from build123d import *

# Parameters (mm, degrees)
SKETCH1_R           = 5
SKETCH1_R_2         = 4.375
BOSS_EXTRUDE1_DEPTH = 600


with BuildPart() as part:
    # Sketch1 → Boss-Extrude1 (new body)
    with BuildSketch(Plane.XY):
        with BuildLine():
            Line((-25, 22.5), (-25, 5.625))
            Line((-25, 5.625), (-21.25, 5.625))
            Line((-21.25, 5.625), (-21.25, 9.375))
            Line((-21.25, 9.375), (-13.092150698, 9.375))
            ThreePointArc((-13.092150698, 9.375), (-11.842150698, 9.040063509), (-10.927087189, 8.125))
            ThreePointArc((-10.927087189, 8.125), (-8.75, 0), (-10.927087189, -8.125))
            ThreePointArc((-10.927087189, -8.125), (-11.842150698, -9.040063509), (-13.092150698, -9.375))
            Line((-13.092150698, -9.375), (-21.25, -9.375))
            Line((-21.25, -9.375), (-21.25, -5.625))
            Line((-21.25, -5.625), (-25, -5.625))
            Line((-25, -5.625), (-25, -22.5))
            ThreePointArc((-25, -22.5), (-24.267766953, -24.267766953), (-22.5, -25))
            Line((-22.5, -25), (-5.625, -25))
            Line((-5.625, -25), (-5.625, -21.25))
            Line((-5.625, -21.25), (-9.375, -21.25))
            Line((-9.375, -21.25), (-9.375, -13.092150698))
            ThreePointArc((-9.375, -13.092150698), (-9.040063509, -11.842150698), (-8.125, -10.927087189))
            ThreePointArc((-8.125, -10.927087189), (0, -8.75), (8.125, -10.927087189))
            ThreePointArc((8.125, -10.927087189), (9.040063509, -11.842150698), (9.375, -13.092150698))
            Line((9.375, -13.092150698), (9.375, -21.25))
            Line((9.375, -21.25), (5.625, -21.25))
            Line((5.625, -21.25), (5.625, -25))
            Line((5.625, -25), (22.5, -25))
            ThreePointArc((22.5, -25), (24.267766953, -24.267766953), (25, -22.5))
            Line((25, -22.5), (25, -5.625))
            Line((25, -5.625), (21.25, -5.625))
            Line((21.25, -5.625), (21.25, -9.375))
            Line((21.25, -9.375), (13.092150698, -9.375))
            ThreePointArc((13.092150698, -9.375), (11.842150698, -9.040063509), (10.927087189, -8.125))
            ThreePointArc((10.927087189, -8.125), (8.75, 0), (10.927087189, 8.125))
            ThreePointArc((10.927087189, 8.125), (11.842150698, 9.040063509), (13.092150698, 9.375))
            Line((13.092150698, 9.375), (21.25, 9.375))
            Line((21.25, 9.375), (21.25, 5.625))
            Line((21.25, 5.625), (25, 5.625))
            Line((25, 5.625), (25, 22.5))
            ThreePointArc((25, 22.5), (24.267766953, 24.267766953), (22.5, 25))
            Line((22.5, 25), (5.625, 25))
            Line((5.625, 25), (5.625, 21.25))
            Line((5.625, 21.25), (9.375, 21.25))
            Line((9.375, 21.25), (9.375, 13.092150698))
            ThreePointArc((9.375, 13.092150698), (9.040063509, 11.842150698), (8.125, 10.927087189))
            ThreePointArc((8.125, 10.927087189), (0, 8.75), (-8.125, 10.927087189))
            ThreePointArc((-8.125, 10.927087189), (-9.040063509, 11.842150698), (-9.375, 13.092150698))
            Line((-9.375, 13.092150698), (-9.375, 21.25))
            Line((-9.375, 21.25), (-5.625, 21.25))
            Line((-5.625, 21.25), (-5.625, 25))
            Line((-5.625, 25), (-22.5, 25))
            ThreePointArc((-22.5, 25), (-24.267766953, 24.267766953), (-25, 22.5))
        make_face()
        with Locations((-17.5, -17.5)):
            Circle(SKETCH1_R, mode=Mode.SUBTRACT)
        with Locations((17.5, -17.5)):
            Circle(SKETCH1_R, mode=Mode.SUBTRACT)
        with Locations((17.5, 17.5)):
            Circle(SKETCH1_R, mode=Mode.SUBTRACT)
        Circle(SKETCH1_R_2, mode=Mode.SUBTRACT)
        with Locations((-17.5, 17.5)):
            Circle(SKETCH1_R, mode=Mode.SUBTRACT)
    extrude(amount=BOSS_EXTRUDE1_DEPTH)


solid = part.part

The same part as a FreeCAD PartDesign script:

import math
import FreeCAD as App
import Part
import Sketcher

doc = App.newDocument("Part")
body = doc.addObject("PartDesign::Body", "Body")

# Sketch on XY plane
sketch1 = body.newObject("Sketcher::SketchObject", "Sketch")
sketch1.AttachmentSupport = (doc.getObject("XY_Plane"), [""])
sketch1.MapMode = "FlatFace"
sketch1.addGeometry([
    Part.LineSegment(App.Vector(-25, 22.5, 0), App.Vector(-25, 5.625, 0)),  # 0
    Part.LineSegment(App.Vector(-25, 5.625, 0), App.Vector(-21.25, 5.625, 0)),  # 1
    Part.LineSegment(App.Vector(-21.25, 5.625, 0), App.Vector(-21.25, 9.375, 0)),  # 2
    Part.LineSegment(App.Vector(-21.25, 9.375, 0), App.Vector(-13.092151, 9.375, 0)),  # 3
    Part.ArcOfCircle(Part.Circle(App.Vector(-13.092151, 6.875, 0), App.Vector(0, 0, 1), 2.5), math.radians(30), math.radians(90)),  # 4
    Part.ArcOfCircle(Part.Circle(App.Vector(-25, 0, 0), App.Vector(0, 0, 1), 16.25), math.radians(-30), math.radians(30)),  # 5
    Part.ArcOfCircle(Part.Circle(App.Vector(-13.092151, -6.875, 0), App.Vector(0, 0, 1), 2.5), math.radians(-90), math.radians(-30)),  # 6
    Part.LineSegment(App.Vector(-13.092151, -9.375, 0), App.Vector(-21.25, -9.375, 0)),  # 7
    Part.LineSegment(App.Vector(-21.25, -9.375, 0), App.Vector(-21.25, -5.625, 0)),  # 8
    Part.LineSegment(App.Vector(-21.25, -5.625, 0), App.Vector(-25, -5.625, 0)),  # 9
    Part.LineSegment(App.Vector(-25, -5.625, 0), App.Vector(-25, -22.5, 0)),  # 10
    Part.ArcOfCircle(Part.Circle(App.Vector(-22.5, -22.5, 0), App.Vector(0, 0, 1), 2.5), math.radians(180), math.radians(270)),  # 11
    Part.LineSegment(App.Vector(-22.5, -25, 0), App.Vector(-5.625, -25, 0)),  # 12
    Part.LineSegment(App.Vector(-5.625, -25, 0), App.Vector(-5.625, -21.25, 0)),  # 13
    Part.LineSegment(App.Vector(-5.625, -21.25, 0), App.Vector(-9.375, -21.25, 0)),  # 14
    Part.LineSegment(App.Vector(-9.375, -21.25, 0), App.Vector(-9.375, -13.092151, 0)),  # 15
    Part.ArcOfCircle(Part.Circle(App.Vector(-6.875, -13.092151, 0), App.Vector(0, 0, 1), 2.5), math.radians(120), math.radians(180)),  # 16
    Part.ArcOfCircle(Part.Circle(App.Vector(0, -25, 0), App.Vector(0, 0, 1), 16.25), math.radians(60), math.radians(120)),  # 17
    Part.ArcOfCircle(Part.Circle(App.Vector(6.875, -13.092151, 0), App.Vector(0, 0, 1), 2.5), math.radians(0), math.radians(60)),  # 18
    Part.LineSegment(App.Vector(9.375, -13.092151, 0), App.Vector(9.375, -21.25, 0)),  # 19
    Part.LineSegment(App.Vector(9.375, -21.25, 0), App.Vector(5.625, -21.25, 0)),  # 20
    Part.LineSegment(App.Vector(5.625, -21.25, 0), App.Vector(5.625, -25, 0)),  # 21
    Part.LineSegment(App.Vector(5.625, -25, 0), App.Vector(22.5, -25, 0)),  # 22
    Part.ArcOfCircle(Part.Circle(App.Vector(22.5, -22.5, 0), App.Vector(0, 0, 1), 2.5), math.radians(-90), math.radians(0)),  # 23
    Part.LineSegment(App.Vector(25, -22.5, 0), App.Vector(25, -5.625, 0)),  # 24
    Part.LineSegment(App.Vector(25, -5.625, 0), App.Vector(21.25, -5.625, 0)),  # 25
    Part.LineSegment(App.Vector(21.25, -5.625, 0), App.Vector(21.25, -9.375, 0)),  # 26
    Part.LineSegment(App.Vector(21.25, -9.375, 0), App.Vector(13.092151, -9.375, 0)),  # 27
    Part.ArcOfCircle(Part.Circle(App.Vector(13.092151, -6.875, 0), App.Vector(0, 0, 1), 2.5), math.radians(-150), math.radians(-90)),  # 28
    Part.ArcOfCircle(Part.Circle(App.Vector(25, 0, 0), App.Vector(0, 0, 1), 16.25), math.radians(150), math.radians(210)),  # 29
    Part.ArcOfCircle(Part.Circle(App.Vector(13.092151, 6.875, 0), App.Vector(0, 0, 1), 2.5), math.radians(90), math.radians(150)),  # 30
    Part.LineSegment(App.Vector(13.092151, 9.375, 0), App.Vector(21.25, 9.375, 0)),  # 31
    Part.LineSegment(App.Vector(21.25, 9.375, 0), App.Vector(21.25, 5.625, 0)),  # 32
    Part.LineSegment(App.Vector(21.25, 5.625, 0), App.Vector(25, 5.625, 0)),  # 33
    Part.LineSegment(App.Vector(25, 5.625, 0), App.Vector(25, 22.5, 0)),  # 34
    Part.ArcOfCircle(Part.Circle(App.Vector(22.5, 22.5, 0), App.Vector(0, 0, 1), 2.5), math.radians(0), math.radians(90)),  # 35
    Part.LineSegment(App.Vector(22.5, 25, 0), App.Vector(5.625, 25, 0)),  # 36
    Part.LineSegment(App.Vector(5.625, 25, 0), App.Vector(5.625, 21.25, 0)),  # 37
    Part.LineSegment(App.Vector(5.625, 21.25, 0), App.Vector(9.375, 21.25, 0)),  # 38
    Part.LineSegment(App.Vector(9.375, 21.25, 0), App.Vector(9.375, 13.092151, 0)),  # 39
    Part.ArcOfCircle(Part.Circle(App.Vector(6.875, 13.092151, 0), App.Vector(0, 0, 1), 2.5), math.radians(-60), math.radians(0)),  # 40
    Part.ArcOfCircle(Part.Circle(App.Vector(0, 25, 0), App.Vector(0, 0, 1), 16.25), math.radians(-120), math.radians(-60)),  # 41
    Part.ArcOfCircle(Part.Circle(App.Vector(-6.875, 13.092151, 0), App.Vector(0, 0, 1), 2.5), math.radians(-180), math.radians(-120)),  # 42
    Part.LineSegment(App.Vector(-9.375, 13.092151, 0), App.Vector(-9.375, 21.25, 0)),  # 43
    Part.LineSegment(App.Vector(-9.375, 21.25, 0), App.Vector(-5.625, 21.25, 0)),  # 44
    Part.LineSegment(App.Vector(-5.625, 21.25, 0), App.Vector(-5.625, 25, 0)),  # 45
    Part.LineSegment(App.Vector(-5.625, 25, 0), App.Vector(-22.5, 25, 0)),  # 46
    Part.ArcOfCircle(Part.Circle(App.Vector(-22.5, 22.5, 0), App.Vector(0, 0, 1), 2.5), math.radians(90), math.radians(180)),  # 47
    Part.Circle(App.Vector(-17.5, -17.5, 0), App.Vector(0, 0, 1), 5),  # 48
    Part.Circle(App.Vector(17.5, -17.5, 0), App.Vector(0, 0, 1), 5),  # 49
    Part.Circle(App.Vector(-17.5, 17.5, 0), App.Vector(0, 0, 1), 5),  # 50
    Part.Circle(App.Vector(0, 0, 0), App.Vector(0, 0, 1), 4.375),  # 51
    Part.Circle(App.Vector(17.5, 17.5, 0), App.Vector(0, 0, 1), 5),  # 52
], False)
sketch1.addConstraint([
    Sketcher.Constraint("Coincident", 0, 2, 1, 1),
    Sketcher.Constraint("Coincident", 1, 2, 2, 1),
    Sketcher.Constraint("Coincident", 2, 2, 3, 1),
    Sketcher.Constraint("Tangent", 3, 2, 4, 2),
    Sketcher.Constraint("Tangent", 4, 1, 5, 2),
    Sketcher.Constraint("Tangent", 5, 1, 6, 2),
    Sketcher.Constraint("Tangent", 6, 1, 7, 1),
    Sketcher.Constraint("Coincident", 7, 2, 8, 1),
    Sketcher.Constraint("Coincident", 8, 2, 9, 1),
    Sketcher.Constraint("Coincident", 9, 2, 10, 1),
    Sketcher.Constraint("Tangent", 10, 2, 11, 1),
    Sketcher.Constraint("Tangent", 11, 2, 12, 1),
    Sketcher.Constraint("Coincident", 12, 2, 13, 1),
    Sketcher.Constraint("Coincident", 13, 2, 14, 1),
    Sketcher.Constraint("Coincident", 14, 2, 15, 1),
    Sketcher.Constraint("Tangent", 15, 2, 16, 2),
    Sketcher.Constraint("Tangent", 16, 1, 17, 2),
    Sketcher.Constraint("Tangent", 17, 1, 18, 2),
    Sketcher.Constraint("Tangent", 18, 1, 19, 1),
    Sketcher.Constraint("Coincident", 19, 2, 20, 1),
    Sketcher.Constraint("Coincident", 20, 2, 21, 1),
    Sketcher.Constraint("Coincident", 21, 2, 22, 1),
    Sketcher.Constraint("Tangent", 22, 2, 23, 1),
    Sketcher.Constraint("Tangent", 23, 2, 24, 1),
    Sketcher.Constraint("Coincident", 24, 2, 25, 1),
    Sketcher.Constraint("Coincident", 25, 2, 26, 1),
    Sketcher.Constraint("Coincident", 26, 2, 27, 1),
    Sketcher.Constraint("Tangent", 27, 2, 28, 2),
    Sketcher.Constraint("Tangent", 28, 1, 29, 2),
    Sketcher.Constraint("Tangent", 29, 1, 30, 2),
    Sketcher.Constraint("Tangent", 30, 1, 31, 1),
    Sketcher.Constraint("Coincident", 31, 2, 32, 1),
    Sketcher.Constraint("Coincident", 32, 2, 33, 1),
    Sketcher.Constraint("Coincident", 33, 2, 34, 1),
    Sketcher.Constraint("Tangent", 34, 2, 35, 1),
    Sketcher.Constraint("Tangent", 35, 2, 36, 1),
    Sketcher.Constraint("Coincident", 36, 2, 37, 1),
    Sketcher.Constraint("Coincident", 37, 2, 38, 1),
    Sketcher.Constraint("Coincident", 38, 2, 39, 1),
    Sketcher.Constraint("Tangent", 39, 2, 40, 2),
    Sketcher.Constraint("Tangent", 40, 1, 41, 2),
    Sketcher.Constraint("Tangent", 41, 1, 42, 2),
    Sketcher.Constraint("Tangent", 42, 1, 43, 1),
    Sketcher.Constraint("Coincident", 43, 2, 44, 1),
    Sketcher.Constraint("Coincident", 44, 2, 45, 1),
    Sketcher.Constraint("Coincident", 45, 2, 46, 1),
    Sketcher.Constraint("Tangent", 46, 2, 47, 1),
    Sketcher.Constraint("Tangent", 47, 2, 0, 1),
    Sketcher.Constraint("Vertical", 0),
    Sketcher.Constraint("Horizontal", 1),
    Sketcher.Constraint("Vertical", 2),
    Sketcher.Constraint("Horizontal", 3),
    Sketcher.Constraint("Horizontal", 7),
    Sketcher.Constraint("Vertical", 8),
    Sketcher.Constraint("Horizontal", 9),
    Sketcher.Constraint("Vertical", 10),
    Sketcher.Constraint("Horizontal", 12),
    Sketcher.Constraint("Vertical", 13),
    Sketcher.Constraint("Horizontal", 14),
    Sketcher.Constraint("Vertical", 15),
    Sketcher.Constraint("Vertical", 19),
    Sketcher.Constraint("Horizontal", 20),
    Sketcher.Constraint("Vertical", 21),
    Sketcher.Constraint("Horizontal", 22),
    Sketcher.Constraint("Vertical", 24),
    Sketcher.Constraint("Horizontal", 25),
    Sketcher.Constraint("Vertical", 26),
    Sketcher.Constraint("Horizontal", 27),
    Sketcher.Constraint("Horizontal", 31),
    Sketcher.Constraint("Vertical", 32),
    Sketcher.Constraint("Horizontal", 33),
    Sketcher.Constraint("Vertical", 34),
    Sketcher.Constraint("Horizontal", 36),
    Sketcher.Constraint("Vertical", 37),
    Sketcher.Constraint("Horizontal", 38),
    Sketcher.Constraint("Vertical", 39),
    Sketcher.Constraint("Vertical", 43),
    Sketcher.Constraint("Horizontal", 44),
    Sketcher.Constraint("Vertical", 45),
    Sketcher.Constraint("Horizontal", 46),
    Sketcher.Constraint("Coincident", 51, 3, -1, 1),
    Sketcher.Constraint("Equal", 4, 6),
    Sketcher.Constraint("Equal", 6, 11),
    Sketcher.Constraint("Equal", 11, 16),
    Sketcher.Constraint("Equal", 5, 17),
    Sketcher.Constraint("Equal", 16, 18),
    Sketcher.Constraint("Equal", 18, 23),
    Sketcher.Constraint("Equal", 23, 28),
    Sketcher.Constraint("Equal", 17, 29),
    Sketcher.Constraint("Equal", 28, 30),
    Sketcher.Constraint("Equal", 30, 35),
    Sketcher.Constraint("Equal", 35, 40),
    Sketcher.Constraint("Equal", 29, 41),
    Sketcher.Constraint("Equal", 40, 42),
    Sketcher.Constraint("Equal", 42, 47),
    Sketcher.Constraint("Equal", 48, 49),
    Sketcher.Constraint("Equal", 49, 50),
    Sketcher.Constraint("Equal", 50, 52),
    Sketcher.Constraint("Symmetric", 4, 3, 28, 3, -1, 1),
    Sketcher.Constraint("Symmetric", 6, 3, 30, 3, -1, 1),
    Sketcher.Constraint("Symmetric", 11, 3, 35, 3, -1, 1),
    Sketcher.Constraint("Symmetric", 16, 3, 40, 3, -1, 1),
    Sketcher.Constraint("Symmetric", 18, 3, 42, 3, -1, 1),
    Sketcher.Constraint("Symmetric", 23, 3, 47, 3, -1, 1),
    Sketcher.Constraint("Symmetric", 49, 3, 50, 3, -1, 1),
    Sketcher.Constraint("Symmetric", 48, 3, 52, 3, -1, 1),
    Sketcher.Constraint("Symmetric", 1, 2, 25, 2, -1, 1),
    Sketcher.Constraint("Symmetric", 8, 2, 32, 2, -1, 1),
    Sketcher.Constraint("Symmetric", 13, 2, 37, 2, -1, 1),
    Sketcher.Constraint("Symmetric", 20, 2, 44, 2, -1, 1),
    Sketcher.Constraint("Symmetric", 16, 3, 18, 3, -2),
    Sketcher.Constraint("Symmetric", 11, 3, 23, 3, -2),
    Sketcher.Constraint("Symmetric", 6, 3, 28, 3, -2),
    Sketcher.Constraint("Symmetric", 48, 3, 49, 3, -2),
    Sketcher.Constraint("Symmetric", 13, 2, 20, 2, -2),
    Sketcher.Constraint("Symmetric", 8, 2, 25, 2, -2),
    Sketcher.Constraint("Horizontal", 17, 3, 11, 2),
    Sketcher.Constraint("Vertical", 5, 3, 0, 2),
    Sketcher.Constraint("Equal", 9, 14),
    Sketcher.Constraint("Equal", 46, 0),
    Sketcher.Constraint("Equal", 44, 2),
    Sketcher.Constraint("Equal", 8, 13),
    Sketcher.Constraint("Equal", 31, 15),
    Sketcher.Constraint("Diameter", 48, 10.0),
    Sketcher.Constraint("Radius", 4, 2.5),
    Sketcher.Constraint("Diameter", 51, 8.75),
    Sketcher.Constraint("Radius", 5, 16.25),
    Sketcher.Constraint("DistanceX", 5, 3, -1, 1, 25.0),
    Sketcher.Constraint("DistanceX", 1, 1, 1, 2, 3.75),
    Sketcher.Constraint("DistanceX", 48, 3, -1, 1, 17.5),
    Sketcher.Constraint("DistanceY", 48, 3, -1, 1, 17.5),
    Sketcher.Constraint("DistanceX", 12, 1, 12, 2, 16.875),
])
pad1 = body.newObject("PartDesign::Pad", "Pad")
pad1.Profile = sketch1
pad1.Length = 600

doc.recompute()
